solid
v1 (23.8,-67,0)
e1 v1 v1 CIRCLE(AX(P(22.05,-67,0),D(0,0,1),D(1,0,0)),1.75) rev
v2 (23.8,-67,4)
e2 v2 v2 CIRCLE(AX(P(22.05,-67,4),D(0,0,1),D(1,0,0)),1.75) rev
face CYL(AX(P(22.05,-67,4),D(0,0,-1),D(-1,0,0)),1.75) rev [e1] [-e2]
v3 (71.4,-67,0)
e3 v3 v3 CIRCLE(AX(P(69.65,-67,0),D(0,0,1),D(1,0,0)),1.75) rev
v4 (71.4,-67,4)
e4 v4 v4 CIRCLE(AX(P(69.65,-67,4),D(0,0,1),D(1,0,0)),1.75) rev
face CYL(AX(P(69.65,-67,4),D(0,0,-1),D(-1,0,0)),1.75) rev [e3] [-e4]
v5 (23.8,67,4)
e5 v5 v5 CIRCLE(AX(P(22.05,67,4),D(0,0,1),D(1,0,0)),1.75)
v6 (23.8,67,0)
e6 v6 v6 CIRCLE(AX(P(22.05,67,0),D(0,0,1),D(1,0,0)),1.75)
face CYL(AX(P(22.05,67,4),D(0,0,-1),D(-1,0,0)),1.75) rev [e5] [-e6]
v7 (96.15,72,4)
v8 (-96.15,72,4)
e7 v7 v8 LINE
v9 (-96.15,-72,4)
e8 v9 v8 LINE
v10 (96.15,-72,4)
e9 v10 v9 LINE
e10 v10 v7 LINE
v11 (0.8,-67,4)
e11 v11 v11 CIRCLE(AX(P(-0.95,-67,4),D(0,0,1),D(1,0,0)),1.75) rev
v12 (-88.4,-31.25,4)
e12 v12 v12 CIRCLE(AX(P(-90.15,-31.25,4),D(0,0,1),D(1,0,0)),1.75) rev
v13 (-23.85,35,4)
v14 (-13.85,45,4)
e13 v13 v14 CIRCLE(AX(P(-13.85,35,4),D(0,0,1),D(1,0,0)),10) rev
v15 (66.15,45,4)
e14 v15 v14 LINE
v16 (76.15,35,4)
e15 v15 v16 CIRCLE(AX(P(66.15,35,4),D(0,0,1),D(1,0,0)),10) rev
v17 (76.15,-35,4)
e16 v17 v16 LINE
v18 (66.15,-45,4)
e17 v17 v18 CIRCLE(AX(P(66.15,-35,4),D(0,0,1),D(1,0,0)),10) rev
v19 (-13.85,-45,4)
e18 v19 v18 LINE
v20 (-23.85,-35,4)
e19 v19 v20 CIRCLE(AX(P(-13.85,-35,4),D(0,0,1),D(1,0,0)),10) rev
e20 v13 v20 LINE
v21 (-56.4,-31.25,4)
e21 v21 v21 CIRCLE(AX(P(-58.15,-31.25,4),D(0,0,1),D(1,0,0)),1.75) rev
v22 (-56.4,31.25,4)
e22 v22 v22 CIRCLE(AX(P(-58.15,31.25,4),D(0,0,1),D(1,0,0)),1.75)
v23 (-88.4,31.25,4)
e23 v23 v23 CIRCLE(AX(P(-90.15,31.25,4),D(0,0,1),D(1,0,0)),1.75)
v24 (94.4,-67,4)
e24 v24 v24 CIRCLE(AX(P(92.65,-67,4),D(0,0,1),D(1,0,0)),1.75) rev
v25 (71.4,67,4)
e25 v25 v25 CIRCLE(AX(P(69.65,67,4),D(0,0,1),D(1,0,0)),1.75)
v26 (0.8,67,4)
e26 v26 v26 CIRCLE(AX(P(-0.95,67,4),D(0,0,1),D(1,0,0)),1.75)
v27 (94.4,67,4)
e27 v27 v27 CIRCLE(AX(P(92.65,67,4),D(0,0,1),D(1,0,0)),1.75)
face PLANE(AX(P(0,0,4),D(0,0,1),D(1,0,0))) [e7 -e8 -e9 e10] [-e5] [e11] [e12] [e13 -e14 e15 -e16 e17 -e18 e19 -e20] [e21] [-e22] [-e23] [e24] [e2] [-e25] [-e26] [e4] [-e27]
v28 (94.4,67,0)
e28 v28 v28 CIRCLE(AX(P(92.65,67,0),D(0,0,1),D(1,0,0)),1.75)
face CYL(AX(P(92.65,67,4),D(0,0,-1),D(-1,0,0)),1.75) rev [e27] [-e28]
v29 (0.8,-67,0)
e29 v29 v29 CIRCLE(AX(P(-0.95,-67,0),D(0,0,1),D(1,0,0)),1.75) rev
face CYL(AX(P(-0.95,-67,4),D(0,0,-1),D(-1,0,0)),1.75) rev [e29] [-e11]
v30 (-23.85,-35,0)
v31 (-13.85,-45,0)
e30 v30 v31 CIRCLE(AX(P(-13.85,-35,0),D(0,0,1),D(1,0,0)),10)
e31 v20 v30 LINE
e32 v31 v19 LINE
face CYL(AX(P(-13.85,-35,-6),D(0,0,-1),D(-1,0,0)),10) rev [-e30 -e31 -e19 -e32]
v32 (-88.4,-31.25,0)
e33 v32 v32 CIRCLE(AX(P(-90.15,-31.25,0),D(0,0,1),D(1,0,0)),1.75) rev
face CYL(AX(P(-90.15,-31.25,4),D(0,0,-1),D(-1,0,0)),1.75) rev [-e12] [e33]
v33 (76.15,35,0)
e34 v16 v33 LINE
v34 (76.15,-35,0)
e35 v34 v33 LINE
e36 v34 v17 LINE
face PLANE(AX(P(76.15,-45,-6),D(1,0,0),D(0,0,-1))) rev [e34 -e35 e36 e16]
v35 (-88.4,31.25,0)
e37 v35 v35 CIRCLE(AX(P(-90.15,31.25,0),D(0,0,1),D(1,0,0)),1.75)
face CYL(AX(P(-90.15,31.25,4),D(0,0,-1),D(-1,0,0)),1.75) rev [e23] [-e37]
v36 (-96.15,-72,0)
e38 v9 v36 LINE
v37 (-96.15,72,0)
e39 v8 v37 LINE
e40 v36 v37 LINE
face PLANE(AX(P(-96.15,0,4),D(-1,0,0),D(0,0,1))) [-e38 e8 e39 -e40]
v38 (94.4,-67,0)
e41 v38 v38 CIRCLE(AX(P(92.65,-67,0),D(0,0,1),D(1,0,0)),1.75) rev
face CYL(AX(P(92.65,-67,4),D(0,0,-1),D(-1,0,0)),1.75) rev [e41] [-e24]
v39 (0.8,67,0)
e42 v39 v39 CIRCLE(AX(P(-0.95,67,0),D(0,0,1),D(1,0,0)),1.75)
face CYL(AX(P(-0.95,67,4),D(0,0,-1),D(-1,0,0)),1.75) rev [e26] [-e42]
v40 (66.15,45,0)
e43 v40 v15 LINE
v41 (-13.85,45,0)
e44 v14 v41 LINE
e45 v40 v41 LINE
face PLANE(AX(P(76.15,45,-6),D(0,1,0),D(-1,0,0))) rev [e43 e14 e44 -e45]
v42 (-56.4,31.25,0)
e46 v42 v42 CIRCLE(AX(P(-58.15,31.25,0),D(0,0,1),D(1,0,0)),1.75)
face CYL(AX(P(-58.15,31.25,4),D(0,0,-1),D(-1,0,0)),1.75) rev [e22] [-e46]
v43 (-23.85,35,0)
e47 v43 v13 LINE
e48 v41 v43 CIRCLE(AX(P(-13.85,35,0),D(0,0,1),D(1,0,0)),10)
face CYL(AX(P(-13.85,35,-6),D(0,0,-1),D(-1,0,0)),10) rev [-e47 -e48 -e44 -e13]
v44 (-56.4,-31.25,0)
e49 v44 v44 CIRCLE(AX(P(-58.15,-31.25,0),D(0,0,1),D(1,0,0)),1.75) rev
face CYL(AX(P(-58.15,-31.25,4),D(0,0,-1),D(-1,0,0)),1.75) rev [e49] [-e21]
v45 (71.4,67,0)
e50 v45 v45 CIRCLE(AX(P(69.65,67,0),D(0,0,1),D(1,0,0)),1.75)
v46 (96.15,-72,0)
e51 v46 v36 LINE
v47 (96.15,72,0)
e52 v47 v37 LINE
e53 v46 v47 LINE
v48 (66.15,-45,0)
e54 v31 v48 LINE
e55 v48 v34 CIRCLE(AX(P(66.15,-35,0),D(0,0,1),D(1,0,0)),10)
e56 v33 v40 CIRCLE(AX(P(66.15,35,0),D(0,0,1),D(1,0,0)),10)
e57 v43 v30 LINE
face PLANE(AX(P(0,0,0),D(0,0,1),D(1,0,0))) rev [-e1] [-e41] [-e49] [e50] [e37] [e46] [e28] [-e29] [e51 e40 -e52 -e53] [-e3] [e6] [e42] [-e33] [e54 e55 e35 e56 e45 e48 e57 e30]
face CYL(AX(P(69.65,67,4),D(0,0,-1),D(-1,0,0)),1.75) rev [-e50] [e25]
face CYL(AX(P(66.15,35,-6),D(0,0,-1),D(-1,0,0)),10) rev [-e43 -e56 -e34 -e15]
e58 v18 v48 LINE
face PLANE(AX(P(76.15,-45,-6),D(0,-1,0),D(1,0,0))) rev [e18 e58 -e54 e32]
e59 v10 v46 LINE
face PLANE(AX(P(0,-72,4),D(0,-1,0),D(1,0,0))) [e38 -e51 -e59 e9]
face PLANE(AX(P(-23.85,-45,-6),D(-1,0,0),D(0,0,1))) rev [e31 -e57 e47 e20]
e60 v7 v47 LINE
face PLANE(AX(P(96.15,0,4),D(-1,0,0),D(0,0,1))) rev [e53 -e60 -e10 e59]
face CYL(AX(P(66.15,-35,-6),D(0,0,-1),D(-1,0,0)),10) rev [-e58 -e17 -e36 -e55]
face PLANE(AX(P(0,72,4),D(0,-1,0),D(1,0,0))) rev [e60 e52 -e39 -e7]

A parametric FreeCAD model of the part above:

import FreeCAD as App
import Part
import Sketcher


def edges_at(feature, points):
    """Names of the edges that pass closest to the given points."""
    edges = feature.Shape.Edges
    near = lambda p: min(range(len(edges)), key=lambda i: edges[i].distToShape(Part.Vertex(*p))[0])
    return sorted({f"Edge{near(p) + 1}" for p in points})

doc = App.newDocument("Part")
body = doc.addObject("PartDesign::Body", "Body")

# Sketch on XY plane
sketch1 = body.newObject("Sketcher::SketchObject", "Sketch")
sketch1.AttachmentSupport = (doc.getObject("XY_Plane"), [""])
sketch1.MapMode = "FlatFace"
sketch1.addGeometry([
    Part.LineSegment(App.Vector(-96.2, 72, 0), App.Vector(-96.2, -72, 0)),  # 0
    Part.LineSegment(App.Vector(-96.2, -72, 0), App.Vector(96.2, -72, 0)),  # 1
    Part.LineSegment(App.Vector(96.2, -72, 0), App.Vector(96.2, 72, 0)),  # 2
    Part.LineSegment(App.Vector(96.2, 72, 0), App.Vector(-96.2, 72, 0)),  # 3
    Part.Circle(App.Vector(-0.9, -67, 0), App.Vector(0, 0, 1), 1.8),  # 4
    Part.Circle(App.Vector(-90.2, -31.2, 0), App.Vector(0, 0, 1), 1.8),  # 5
    Part.Circle(App.Vector(-58.1, -31.2, 0), App.Vector(0, 0, 1), 1.8),  # 6
    Part.Circle(App.Vector(22.1, -67, 0), App.Vector(0, 0, 1), 1.8),  # 7
    Part.Circle(App.Vector(69.7, -67, 0), App.Vector(0, 0, 1), 1.8),  # 8
    Part.Circle(App.Vector(92.7, -67, 0), App.Vector(0, 0, 1), 1.8),  # 9
    Part.Circle(App.Vector(-90.2, 31.2, 0), App.Vector(0, 0, 1), 1.8),  # 10
    Part.Circle(App.Vector(-58.1, 31.2, 0), App.Vector(0, 0, 1), 1.8),  # 11
    Part.Circle(App.Vector(-0.9, 67, 0), App.Vector(0, 0, 1), 1.8),  # 12
    Part.Circle(App.Vector(22.1, 67, 0), App.Vector(0, 0, 1), 1.8),  # 13
    Part.Circle(App.Vector(69.7, 67, 0), App.Vector(0, 0, 1), 1.8),  # 14
    Part.Circle(App.Vector(92.7, 67, 0), App.Vector(0, 0, 1), 1.8),  # 15
], False)
sketch1.addConstraint([
    Sketcher.Constraint("Coincident", 0, 2, 1, 1),
    Sketcher.Constraint("Coincident", 1, 2, 2, 1),
    Sketcher.Constraint("Coincident", 2, 2, 3, 1),
    Sketcher.Constraint("Coincident", 3, 2, 0, 1),
    Sketcher.Constraint("Vertical", 0),
    Sketcher.Constraint("Horizontal", 1),
    Sketcher.Constraint("Vertical", 2),
    Sketcher.Constraint("Horizontal", 3),
    Sketcher.Constraint("Equal", 4, 5),
    Sketcher.Constraint("Equal", 5, 6),
    Sketcher.Constraint("Equal", 6, 7),
    Sketcher.Constraint("Equal", 7, 8),
    Sketcher.Constraint("Equal", 8, 9),
    Sketcher.Constraint("Equal", 9, 10),
    Sketcher.Constraint("Equal", 10, 11),
    Sketcher.Constraint("Equal", 11, 12),
    Sketcher.Constraint("Equal", 12, 13),
    Sketcher.Constraint("Equal", 13, 14),
    Sketcher.Constraint("Equal", 14, 15),
    Sketcher.Constraint("Symmetric", 0, 2, 2, 2, -1, 1),
    Sketcher.Constraint("Symmetric", 5, 3, 10, 3, -1),
    Sketcher.Constraint("Symmetric", 6, 3, 11, 3, -1),
    Sketcher.Constraint("Symmetric", 4, 3, 12, 3, -1),
    Sketcher.Constraint("Symmetric", 7, 3, 13, 3, -1),
    Sketcher.Constraint("Symmetric", 8, 3, 14, 3, -1),
    Sketcher.Constraint("Symmetric", 9, 3, 15, 3, -1),
    Sketcher.Constraint("Horizontal", 5, 3, 6, 3),
    Sketcher.Constraint("Horizontal", 4, 3, 7, 3),
    Sketcher.Constraint("Horizontal", 7, 3, 8, 3),
    Sketcher.Constraint("Horizontal", 8, 3, 9, 3),
    Sketcher.Constraint("Diameter", 4, 3.5),
    Sketcher.Constraint("DistanceY", 0, 2, 0, 1, 144.0),
    Sketcher.Constraint("DistanceX", 1, 1, 1, 2, 192.3),
    Sketcher.Constraint("DistanceY", 4, 3, -1, 1, 67.0),
    Sketcher.Constraint("DistanceX", 5, 3, 6, 3, 32.0),
    Sketcher.Constraint("DistanceX", 4, 3, 7, 3, 23.0),
    Sketcher.Constraint("DistanceX", 8, 3, 9, 3, 23.0),
    Sketcher.Constraint("DistanceX", 0, 2, 5, 3, 6.0),
    Sketcher.Constraint("DistanceX", 5, 3, 4, 3, 89.2),
    Sketcher.Constraint("DistanceX", 7, 3, 8, 3, 47.6),
    Sketcher.Constraint("DistanceY", 5, 3, 10, 3, 62.5),
])
pad1 = body.newObject("PartDesign::Pad", "Pad")
pad1.Profile = sketch1
pad1.Length = 4

# Sketch on XY plane
sketch2 = body.newObject("Sketcher::SketchObject", "Sketch001")
sketch2.AttachmentSupport = (doc.getObject("XY_Plane"), [""])
sketch2.MapMode = "FlatFace"
sketch2.AttachmentOffset = App.Placement(App.Vector(0, 0, 4), App.Rotation())
sketch2.addGeometry([
    Part.LineSegment(App.Vector(-24, 45, 0), App.Vector(-24, -45, 0)),
    Part.LineSegment(App.Vector(-24, -45, 0), App.Vector(76, -45, 0)),
    Part.LineSegment(App.Vector(76, -45, 0), App.Vector(76, 45, 0)),
    Part.LineSegment(App.Vector(76, 45, 0), App.Vector(-24, 45, 0)),
], False)
sketch2.addConstraint([
    Sketcher.Constraint("Coincident", 0, 2, 1, 1),
    Sketcher.Constraint("Coincident", 1, 2, 2, 1),
    Sketcher.Constraint("Coincident", 2, 2, 3, 1),
    Sketcher.Constraint("Coincident", 3, 2, 0, 1),
    Sketcher.Constraint("Vertical", 0),
    Sketcher.Constraint("Horizontal", 1),
    Sketcher.Constraint("Vertical", 2),
    Sketcher.Constraint("Horizontal", 3),
    Sketcher.Constraint("DistanceX", 1, 1, 1, 2, 100.0),
    Sketcher.Constraint("DistanceY", 0, 2, 0, 1, 90.0),
    Sketcher.Constraint("DistanceY", 0, 2, -1, 1, 45.0),
    Sketcher.Constraint("DistanceX", 0, 2, -1, 1, 23.85),
])
pocket1 = body.newObject("PartDesign::Pocket", "Pocket")
pocket1.Profile = sketch2
pocket1.Length = 10
doc.recompute()

fillet = body.newObject("PartDesign::Fillet", "Fillet")
fillet.Base = (pocket1, edges_at(pocket1, [
    (-23.85, -45, 2),
    (-23.85, 45, 2),
    (76.15, 45, 2),
    (76.15, -45, 2),
]))
fillet.Radius = 10

doc.recompute()
